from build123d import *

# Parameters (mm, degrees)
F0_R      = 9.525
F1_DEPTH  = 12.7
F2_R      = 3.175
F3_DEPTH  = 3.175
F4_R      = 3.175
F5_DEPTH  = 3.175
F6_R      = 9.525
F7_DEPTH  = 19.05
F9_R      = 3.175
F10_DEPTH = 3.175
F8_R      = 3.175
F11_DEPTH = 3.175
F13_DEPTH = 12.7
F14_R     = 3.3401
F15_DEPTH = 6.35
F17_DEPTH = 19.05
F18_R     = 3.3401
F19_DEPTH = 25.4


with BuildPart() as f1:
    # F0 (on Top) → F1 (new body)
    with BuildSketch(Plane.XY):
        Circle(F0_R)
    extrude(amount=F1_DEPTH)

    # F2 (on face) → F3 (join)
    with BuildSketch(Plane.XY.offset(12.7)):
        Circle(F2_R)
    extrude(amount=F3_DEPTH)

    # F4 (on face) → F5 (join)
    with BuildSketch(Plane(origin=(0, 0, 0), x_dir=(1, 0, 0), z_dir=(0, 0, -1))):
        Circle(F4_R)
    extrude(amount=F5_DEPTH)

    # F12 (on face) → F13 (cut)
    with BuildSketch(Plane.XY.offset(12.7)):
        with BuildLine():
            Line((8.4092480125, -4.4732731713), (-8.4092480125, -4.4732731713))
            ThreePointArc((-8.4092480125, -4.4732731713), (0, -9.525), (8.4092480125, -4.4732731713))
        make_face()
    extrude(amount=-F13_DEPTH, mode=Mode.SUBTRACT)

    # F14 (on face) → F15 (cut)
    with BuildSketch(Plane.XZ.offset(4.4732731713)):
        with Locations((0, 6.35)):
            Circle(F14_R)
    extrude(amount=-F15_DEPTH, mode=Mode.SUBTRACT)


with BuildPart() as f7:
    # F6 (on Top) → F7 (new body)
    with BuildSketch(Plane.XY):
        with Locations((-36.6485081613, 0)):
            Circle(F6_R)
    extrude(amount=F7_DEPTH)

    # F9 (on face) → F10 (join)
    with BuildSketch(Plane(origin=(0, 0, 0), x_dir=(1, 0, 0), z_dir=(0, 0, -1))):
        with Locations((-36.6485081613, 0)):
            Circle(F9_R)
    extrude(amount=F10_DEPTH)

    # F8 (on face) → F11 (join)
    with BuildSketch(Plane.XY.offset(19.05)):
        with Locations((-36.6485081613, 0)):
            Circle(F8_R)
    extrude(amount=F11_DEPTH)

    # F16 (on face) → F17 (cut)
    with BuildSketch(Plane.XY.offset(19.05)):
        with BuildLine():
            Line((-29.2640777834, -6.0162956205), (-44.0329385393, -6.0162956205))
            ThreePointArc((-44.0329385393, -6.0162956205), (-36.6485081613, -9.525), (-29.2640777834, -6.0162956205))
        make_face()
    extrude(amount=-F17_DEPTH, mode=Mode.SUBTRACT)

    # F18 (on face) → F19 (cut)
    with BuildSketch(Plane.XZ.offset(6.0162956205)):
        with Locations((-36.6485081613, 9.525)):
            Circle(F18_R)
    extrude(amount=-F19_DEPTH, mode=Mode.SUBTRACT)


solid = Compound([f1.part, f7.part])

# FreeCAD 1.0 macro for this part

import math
import FreeCAD as App
import Part
import Sketcher
Q = App.Units.Quantity

doc = App.newDocument("Part")
body = doc.addObject("PartDesign::Body", "Body")

# Sketch on XY plane
sketch1 = body.newObject("Sketcher::SketchObject", "Sketch")
sketch1.AttachmentSupport = (doc.getObject("XY_Plane"), [""])
sketch1.MapMode = "FlatFace"
sketch1.addGeometry(Part.Circle(App.Vector(0, 0, 0), App.Vector(0, 0, 1), 10), False)
sketch1.addConstraint([
    Sketcher.Constraint("Coincident", 0, 3, -1, 1),
    Sketcher.Constraint("Diameter", 0, Q("0.75 in")),
])
pad1 = body.newObject("PartDesign::Pad", "Pad")
pad1.Profile = sketch1
pad1.Length = Q("0.5 in")

# Sketch on XY plane
sketch2 = body.newObject("Sketcher::SketchObject", "Sketch001")
sketch2.AttachmentSupport = (doc.getObject("XY_Plane"), [""])
sketch2.MapMode = "FlatFace"
sketch2.AttachmentOffset = App.Placement(App.Vector(0, 0, 0.5 * 25.4), App.Rotation())
sketch2.addGeometry(Part.Circle(App.Vector(0, 0, 0), App.Vector(0, 0, 1), 3.2), False)
sketch2.addConstraint([
    Sketcher.Constraint("Coincident", 0, 3, -1, 1),
    Sketcher.Constraint("Diameter", 0, Q("0.25 in")),
])
pad2 = body.newObject("PartDesign::Pad", "Pad001")
pad2.Profile = sketch2
pad2.Length = Q("0.125 in")

# Sketch on XY plane
sketch3 = body.newObject("Sketcher::SketchObject", "Sketch002")
sketch3.AttachmentSupport = (doc.getObject("XY_Plane"), [""])
sketch3.MapMode = "FlatFace"
sketch3.addGeometry(Part.Circle(App.Vector(0, 0, 0), App.Vector(0, 0, 1), 3.2), False)
sketch3.addConstraint([
    Sketcher.Constraint("Coincident", 0, 3, -1, 1),
    Sketcher.Constraint("Diameter", 0, Q("0.25 in")),
])
pad3 = body.newObject("PartDesign::Pad", "Pad002")
pad3.Profile = sketch3
pad3.Length = Q("0.125 in")
pad3.Reversed = True

# Sketch on XY plane
sketch4 = body.newObject("Sketcher::SketchObject", "Sketch003")
sketch4.AttachmentSupport = (doc.getObject("XY_Plane"), [""])
sketch4.MapMode = "FlatFace"
sketch4.AttachmentOffset = App.Placement(App.Vector(0, 0, 0.5 * 25.4), App.Rotation())
sketch4.addGeometry([
    Part.LineSegment(App.Vector(8, -4, 0), App.Vector(-8, -4, 0)),
    Part.ArcOfCircle(Part.Circle(App.Vector(0, 0, 0), App.Vector(0, 0, 1), 10), math.radians(-152), math.radians(-28)),
], False)
sketch4.addConstraint([
    Sketcher.Constraint("Coincident", 0, 1, 1, 2),
    Sketcher.Constraint("Coincident", 1, 1, 0, 2),
    Sketcher.Constraint("Horizontal", 0),
    Sketcher.Constraint("Coincident", 1, 3, -1, 1),
    Sketcher.Constraint("Radius", 1, Q("0.375 in")),
    Sketcher.Constraint("DistanceX", 0, 2, 0, 1, Q("16.818496 mm")),
])
pocket1 = body.newObject("PartDesign::Pocket", "Pocket")
pocket1.Profile = sketch4
pocket1.Length = Q("0.5 in")

# Sketch on XZ plane
sketch5 = body.newObject("Sketcher::SketchObject", "Sketch004")
sketch5.AttachmentSupport = (doc.getObject("XZ_Plane"), [""])
sketch5.MapMode = "FlatFace"
sketch5.AttachmentOffset = App.Placement(App.Vector(0, 0, 4.473273), App.Rotation())
sketch5.addGeometry(Part.Circle(App.Vector(0, 6.3, 0), App.Vector(0, 0, 1), 3.3), False)
sketch5.addConstraint([
    Sketcher.Constraint("PointOnObject", 0, 3, -2),
    Sketcher.Constraint("Diameter", 0, Q("0.263 in")),
    Sketcher.Constraint("DistanceY", -1, 1, 0, 3, Q("0.25 in")),
])
pocket2 = body.newObject("PartDesign::Pocket", "Pocket001")
pocket2.Profile = sketch5
pocket2.Length = Q("0.25 in")
body2 = doc.addObject("PartDesign::Body", "Body001")

# Sketch on XY plane
sketch6 = body2.newObject("Sketcher::SketchObject", "Sketch005")
sketch6.AttachmentSupport = (doc.getObject("XY_Plane001"), [""])
sketch6.MapMode = "FlatFace"
sketch6.addGeometry(Part.Circle(App.Vector(-37, 0, 0), App.Vector(0, 0, 1), 10), False)
sketch6.addConstraint([
    Sketcher.Constraint("PointOnObject", 0, 3, -1),
    Sketcher.Constraint("Diameter", 0, Q("0.75 in")),
    Sketcher.Constraint("DistanceX", 0, 3, -1, 1, Q("36.648508 mm")),
])
pad4 = body2.newObject("PartDesign::Pad", "Pad003")
pad4.Profile = sketch6
pad4.Length = Q("0.75 in")

# Sketch on XY plane
sketch7 = body2.newObject("Sketcher::SketchObject", "Sketch006")
sketch7.AttachmentSupport = (doc.getObject("XY_Plane001"), [""])
sketch7.MapMode = "FlatFace"
sketch7.addGeometry(Part.Circle(App.Vector(-36.6, 0, 0), App.Vector(0, 0, 1), 3.2), False)
sketch7.addConstraint([
    Sketcher.Constraint("PointOnObject", 0, 3, -1),
    Sketcher.Constraint("Diameter", 0, Q("0.25 in")),
    Sketcher.Constraint("DistanceX", 0, 3, -1, 1, Q("36.648508 mm")),
])
pad5 = body2.newObject("PartDesign::Pad", "Pad004")
pad5.Profile = sketch7
pad5.Length = Q("0.125 in")
pad5.Reversed = True

# Sketch on XY plane
sketch8 = body2.newObject("Sketcher::SketchObject", "Sketch007")
sketch8.AttachmentSupport = (doc.getObject("XY_Plane001"), [""])
sketch8.MapMode = "FlatFace"
sketch8.AttachmentOffset = App.Placement(App.Vector(0, 0, 0.75 * 25.4), App.Rotation())
sketch8.addGeometry(Part.Circle(App.Vector(-36.6, 0, 0), App.Vector(0, 0, 1), 3.2), False)
sketch8.addConstraint([
    Sketcher.Constraint("PointOnObject", 0, 3, -1),
    Sketcher.Constraint("Diameter", 0, Q("0.25 in")),
    Sketcher.Constraint("DistanceX", 0, 3, -1, 1, Q("36.648508 mm")),
])
pad6 = body2.newObject("PartDesign::Pad", "Pad005")
pad6.Profile = sketch8
pad6.Length = Q("0.125 in")

# Sketch on XY plane
sketch9 = body2.newObject("Sketcher::SketchObject", "Sketch008")
sketch9.AttachmentSupport = (doc.getObject("XY_Plane001"), [""])
sketch9.MapMode = "FlatFace"
sketch9.AttachmentOffset = App.Placement(App.Vector(0, 0, 0.75 * 25.4), App.Rotation())
sketch9.addGeometry([
    Part.LineSegment(App.Vector(-29, -6, 0), App.Vector(-44, -6, 0)),
    Part.ArcOfCircle(Part.Circle(App.Vector(-37, 0, 0), App.Vector(0, 0, 1), 10), math.radians(-141), math.radians(-39)),
], False)
sketch9.addConstraint([
    Sketcher.Constraint("Coincident", 0, 1, 1, 2),
    Sketcher.Constraint("Coincident", 1, 1, 0, 2),
    Sketcher.Constraint("Horizontal", 0),
    Sketcher.Constraint("PointOnObject", 1, 3, -1),
    Sketcher.Constraint("Radius", 1, Q("0.375 in")),
    Sketcher.Constraint("DistanceX", 0, 2, 0, 1, Q("14.768861 mm")),
    Sketcher.Constraint("DistanceX", 1, 3, -1, 1, Q("36.648508 mm")),
])
pocket3 = body2.newObject("PartDesign::Pocket", "Pocket002")
pocket3.Profile = sketch9
pocket3.Length = Q("0.75 in")

# Sketch on XZ plane
sketch10 = body2.newObject("Sketcher::SketchObject", "Sketch009")
sketch10.AttachmentSupport = (doc.getObject("XZ_Plane001"), [""])
sketch10.MapMode = "FlatFace"
sketch10.AttachmentOffset = App.Placement(App.Vector(0, 0, 6.016296), App.Rotation())
sketch10.addGeometry(Part.Circle(App.Vector(-36.6, 9.5, 0), App.Vector(0, 0, 1), 3.3), False)
sketch10.addConstraint([
    Sketcher.Constraint("Diameter", 0, Q("0.263 in")),
    Sketcher.Constraint("DistanceY", -1, 1, 0, 3, Q("0.375 in")),
    Sketcher.Constraint("DistanceX", 0, 3, -1, 1, Q("36.648508 mm")),
])
pocket4 = body2.newObject("PartDesign::Pocket", "Pocket003")
pocket4.Profile = sketch10
pocket4.Length = Q("1 in")

doc.recompute()
